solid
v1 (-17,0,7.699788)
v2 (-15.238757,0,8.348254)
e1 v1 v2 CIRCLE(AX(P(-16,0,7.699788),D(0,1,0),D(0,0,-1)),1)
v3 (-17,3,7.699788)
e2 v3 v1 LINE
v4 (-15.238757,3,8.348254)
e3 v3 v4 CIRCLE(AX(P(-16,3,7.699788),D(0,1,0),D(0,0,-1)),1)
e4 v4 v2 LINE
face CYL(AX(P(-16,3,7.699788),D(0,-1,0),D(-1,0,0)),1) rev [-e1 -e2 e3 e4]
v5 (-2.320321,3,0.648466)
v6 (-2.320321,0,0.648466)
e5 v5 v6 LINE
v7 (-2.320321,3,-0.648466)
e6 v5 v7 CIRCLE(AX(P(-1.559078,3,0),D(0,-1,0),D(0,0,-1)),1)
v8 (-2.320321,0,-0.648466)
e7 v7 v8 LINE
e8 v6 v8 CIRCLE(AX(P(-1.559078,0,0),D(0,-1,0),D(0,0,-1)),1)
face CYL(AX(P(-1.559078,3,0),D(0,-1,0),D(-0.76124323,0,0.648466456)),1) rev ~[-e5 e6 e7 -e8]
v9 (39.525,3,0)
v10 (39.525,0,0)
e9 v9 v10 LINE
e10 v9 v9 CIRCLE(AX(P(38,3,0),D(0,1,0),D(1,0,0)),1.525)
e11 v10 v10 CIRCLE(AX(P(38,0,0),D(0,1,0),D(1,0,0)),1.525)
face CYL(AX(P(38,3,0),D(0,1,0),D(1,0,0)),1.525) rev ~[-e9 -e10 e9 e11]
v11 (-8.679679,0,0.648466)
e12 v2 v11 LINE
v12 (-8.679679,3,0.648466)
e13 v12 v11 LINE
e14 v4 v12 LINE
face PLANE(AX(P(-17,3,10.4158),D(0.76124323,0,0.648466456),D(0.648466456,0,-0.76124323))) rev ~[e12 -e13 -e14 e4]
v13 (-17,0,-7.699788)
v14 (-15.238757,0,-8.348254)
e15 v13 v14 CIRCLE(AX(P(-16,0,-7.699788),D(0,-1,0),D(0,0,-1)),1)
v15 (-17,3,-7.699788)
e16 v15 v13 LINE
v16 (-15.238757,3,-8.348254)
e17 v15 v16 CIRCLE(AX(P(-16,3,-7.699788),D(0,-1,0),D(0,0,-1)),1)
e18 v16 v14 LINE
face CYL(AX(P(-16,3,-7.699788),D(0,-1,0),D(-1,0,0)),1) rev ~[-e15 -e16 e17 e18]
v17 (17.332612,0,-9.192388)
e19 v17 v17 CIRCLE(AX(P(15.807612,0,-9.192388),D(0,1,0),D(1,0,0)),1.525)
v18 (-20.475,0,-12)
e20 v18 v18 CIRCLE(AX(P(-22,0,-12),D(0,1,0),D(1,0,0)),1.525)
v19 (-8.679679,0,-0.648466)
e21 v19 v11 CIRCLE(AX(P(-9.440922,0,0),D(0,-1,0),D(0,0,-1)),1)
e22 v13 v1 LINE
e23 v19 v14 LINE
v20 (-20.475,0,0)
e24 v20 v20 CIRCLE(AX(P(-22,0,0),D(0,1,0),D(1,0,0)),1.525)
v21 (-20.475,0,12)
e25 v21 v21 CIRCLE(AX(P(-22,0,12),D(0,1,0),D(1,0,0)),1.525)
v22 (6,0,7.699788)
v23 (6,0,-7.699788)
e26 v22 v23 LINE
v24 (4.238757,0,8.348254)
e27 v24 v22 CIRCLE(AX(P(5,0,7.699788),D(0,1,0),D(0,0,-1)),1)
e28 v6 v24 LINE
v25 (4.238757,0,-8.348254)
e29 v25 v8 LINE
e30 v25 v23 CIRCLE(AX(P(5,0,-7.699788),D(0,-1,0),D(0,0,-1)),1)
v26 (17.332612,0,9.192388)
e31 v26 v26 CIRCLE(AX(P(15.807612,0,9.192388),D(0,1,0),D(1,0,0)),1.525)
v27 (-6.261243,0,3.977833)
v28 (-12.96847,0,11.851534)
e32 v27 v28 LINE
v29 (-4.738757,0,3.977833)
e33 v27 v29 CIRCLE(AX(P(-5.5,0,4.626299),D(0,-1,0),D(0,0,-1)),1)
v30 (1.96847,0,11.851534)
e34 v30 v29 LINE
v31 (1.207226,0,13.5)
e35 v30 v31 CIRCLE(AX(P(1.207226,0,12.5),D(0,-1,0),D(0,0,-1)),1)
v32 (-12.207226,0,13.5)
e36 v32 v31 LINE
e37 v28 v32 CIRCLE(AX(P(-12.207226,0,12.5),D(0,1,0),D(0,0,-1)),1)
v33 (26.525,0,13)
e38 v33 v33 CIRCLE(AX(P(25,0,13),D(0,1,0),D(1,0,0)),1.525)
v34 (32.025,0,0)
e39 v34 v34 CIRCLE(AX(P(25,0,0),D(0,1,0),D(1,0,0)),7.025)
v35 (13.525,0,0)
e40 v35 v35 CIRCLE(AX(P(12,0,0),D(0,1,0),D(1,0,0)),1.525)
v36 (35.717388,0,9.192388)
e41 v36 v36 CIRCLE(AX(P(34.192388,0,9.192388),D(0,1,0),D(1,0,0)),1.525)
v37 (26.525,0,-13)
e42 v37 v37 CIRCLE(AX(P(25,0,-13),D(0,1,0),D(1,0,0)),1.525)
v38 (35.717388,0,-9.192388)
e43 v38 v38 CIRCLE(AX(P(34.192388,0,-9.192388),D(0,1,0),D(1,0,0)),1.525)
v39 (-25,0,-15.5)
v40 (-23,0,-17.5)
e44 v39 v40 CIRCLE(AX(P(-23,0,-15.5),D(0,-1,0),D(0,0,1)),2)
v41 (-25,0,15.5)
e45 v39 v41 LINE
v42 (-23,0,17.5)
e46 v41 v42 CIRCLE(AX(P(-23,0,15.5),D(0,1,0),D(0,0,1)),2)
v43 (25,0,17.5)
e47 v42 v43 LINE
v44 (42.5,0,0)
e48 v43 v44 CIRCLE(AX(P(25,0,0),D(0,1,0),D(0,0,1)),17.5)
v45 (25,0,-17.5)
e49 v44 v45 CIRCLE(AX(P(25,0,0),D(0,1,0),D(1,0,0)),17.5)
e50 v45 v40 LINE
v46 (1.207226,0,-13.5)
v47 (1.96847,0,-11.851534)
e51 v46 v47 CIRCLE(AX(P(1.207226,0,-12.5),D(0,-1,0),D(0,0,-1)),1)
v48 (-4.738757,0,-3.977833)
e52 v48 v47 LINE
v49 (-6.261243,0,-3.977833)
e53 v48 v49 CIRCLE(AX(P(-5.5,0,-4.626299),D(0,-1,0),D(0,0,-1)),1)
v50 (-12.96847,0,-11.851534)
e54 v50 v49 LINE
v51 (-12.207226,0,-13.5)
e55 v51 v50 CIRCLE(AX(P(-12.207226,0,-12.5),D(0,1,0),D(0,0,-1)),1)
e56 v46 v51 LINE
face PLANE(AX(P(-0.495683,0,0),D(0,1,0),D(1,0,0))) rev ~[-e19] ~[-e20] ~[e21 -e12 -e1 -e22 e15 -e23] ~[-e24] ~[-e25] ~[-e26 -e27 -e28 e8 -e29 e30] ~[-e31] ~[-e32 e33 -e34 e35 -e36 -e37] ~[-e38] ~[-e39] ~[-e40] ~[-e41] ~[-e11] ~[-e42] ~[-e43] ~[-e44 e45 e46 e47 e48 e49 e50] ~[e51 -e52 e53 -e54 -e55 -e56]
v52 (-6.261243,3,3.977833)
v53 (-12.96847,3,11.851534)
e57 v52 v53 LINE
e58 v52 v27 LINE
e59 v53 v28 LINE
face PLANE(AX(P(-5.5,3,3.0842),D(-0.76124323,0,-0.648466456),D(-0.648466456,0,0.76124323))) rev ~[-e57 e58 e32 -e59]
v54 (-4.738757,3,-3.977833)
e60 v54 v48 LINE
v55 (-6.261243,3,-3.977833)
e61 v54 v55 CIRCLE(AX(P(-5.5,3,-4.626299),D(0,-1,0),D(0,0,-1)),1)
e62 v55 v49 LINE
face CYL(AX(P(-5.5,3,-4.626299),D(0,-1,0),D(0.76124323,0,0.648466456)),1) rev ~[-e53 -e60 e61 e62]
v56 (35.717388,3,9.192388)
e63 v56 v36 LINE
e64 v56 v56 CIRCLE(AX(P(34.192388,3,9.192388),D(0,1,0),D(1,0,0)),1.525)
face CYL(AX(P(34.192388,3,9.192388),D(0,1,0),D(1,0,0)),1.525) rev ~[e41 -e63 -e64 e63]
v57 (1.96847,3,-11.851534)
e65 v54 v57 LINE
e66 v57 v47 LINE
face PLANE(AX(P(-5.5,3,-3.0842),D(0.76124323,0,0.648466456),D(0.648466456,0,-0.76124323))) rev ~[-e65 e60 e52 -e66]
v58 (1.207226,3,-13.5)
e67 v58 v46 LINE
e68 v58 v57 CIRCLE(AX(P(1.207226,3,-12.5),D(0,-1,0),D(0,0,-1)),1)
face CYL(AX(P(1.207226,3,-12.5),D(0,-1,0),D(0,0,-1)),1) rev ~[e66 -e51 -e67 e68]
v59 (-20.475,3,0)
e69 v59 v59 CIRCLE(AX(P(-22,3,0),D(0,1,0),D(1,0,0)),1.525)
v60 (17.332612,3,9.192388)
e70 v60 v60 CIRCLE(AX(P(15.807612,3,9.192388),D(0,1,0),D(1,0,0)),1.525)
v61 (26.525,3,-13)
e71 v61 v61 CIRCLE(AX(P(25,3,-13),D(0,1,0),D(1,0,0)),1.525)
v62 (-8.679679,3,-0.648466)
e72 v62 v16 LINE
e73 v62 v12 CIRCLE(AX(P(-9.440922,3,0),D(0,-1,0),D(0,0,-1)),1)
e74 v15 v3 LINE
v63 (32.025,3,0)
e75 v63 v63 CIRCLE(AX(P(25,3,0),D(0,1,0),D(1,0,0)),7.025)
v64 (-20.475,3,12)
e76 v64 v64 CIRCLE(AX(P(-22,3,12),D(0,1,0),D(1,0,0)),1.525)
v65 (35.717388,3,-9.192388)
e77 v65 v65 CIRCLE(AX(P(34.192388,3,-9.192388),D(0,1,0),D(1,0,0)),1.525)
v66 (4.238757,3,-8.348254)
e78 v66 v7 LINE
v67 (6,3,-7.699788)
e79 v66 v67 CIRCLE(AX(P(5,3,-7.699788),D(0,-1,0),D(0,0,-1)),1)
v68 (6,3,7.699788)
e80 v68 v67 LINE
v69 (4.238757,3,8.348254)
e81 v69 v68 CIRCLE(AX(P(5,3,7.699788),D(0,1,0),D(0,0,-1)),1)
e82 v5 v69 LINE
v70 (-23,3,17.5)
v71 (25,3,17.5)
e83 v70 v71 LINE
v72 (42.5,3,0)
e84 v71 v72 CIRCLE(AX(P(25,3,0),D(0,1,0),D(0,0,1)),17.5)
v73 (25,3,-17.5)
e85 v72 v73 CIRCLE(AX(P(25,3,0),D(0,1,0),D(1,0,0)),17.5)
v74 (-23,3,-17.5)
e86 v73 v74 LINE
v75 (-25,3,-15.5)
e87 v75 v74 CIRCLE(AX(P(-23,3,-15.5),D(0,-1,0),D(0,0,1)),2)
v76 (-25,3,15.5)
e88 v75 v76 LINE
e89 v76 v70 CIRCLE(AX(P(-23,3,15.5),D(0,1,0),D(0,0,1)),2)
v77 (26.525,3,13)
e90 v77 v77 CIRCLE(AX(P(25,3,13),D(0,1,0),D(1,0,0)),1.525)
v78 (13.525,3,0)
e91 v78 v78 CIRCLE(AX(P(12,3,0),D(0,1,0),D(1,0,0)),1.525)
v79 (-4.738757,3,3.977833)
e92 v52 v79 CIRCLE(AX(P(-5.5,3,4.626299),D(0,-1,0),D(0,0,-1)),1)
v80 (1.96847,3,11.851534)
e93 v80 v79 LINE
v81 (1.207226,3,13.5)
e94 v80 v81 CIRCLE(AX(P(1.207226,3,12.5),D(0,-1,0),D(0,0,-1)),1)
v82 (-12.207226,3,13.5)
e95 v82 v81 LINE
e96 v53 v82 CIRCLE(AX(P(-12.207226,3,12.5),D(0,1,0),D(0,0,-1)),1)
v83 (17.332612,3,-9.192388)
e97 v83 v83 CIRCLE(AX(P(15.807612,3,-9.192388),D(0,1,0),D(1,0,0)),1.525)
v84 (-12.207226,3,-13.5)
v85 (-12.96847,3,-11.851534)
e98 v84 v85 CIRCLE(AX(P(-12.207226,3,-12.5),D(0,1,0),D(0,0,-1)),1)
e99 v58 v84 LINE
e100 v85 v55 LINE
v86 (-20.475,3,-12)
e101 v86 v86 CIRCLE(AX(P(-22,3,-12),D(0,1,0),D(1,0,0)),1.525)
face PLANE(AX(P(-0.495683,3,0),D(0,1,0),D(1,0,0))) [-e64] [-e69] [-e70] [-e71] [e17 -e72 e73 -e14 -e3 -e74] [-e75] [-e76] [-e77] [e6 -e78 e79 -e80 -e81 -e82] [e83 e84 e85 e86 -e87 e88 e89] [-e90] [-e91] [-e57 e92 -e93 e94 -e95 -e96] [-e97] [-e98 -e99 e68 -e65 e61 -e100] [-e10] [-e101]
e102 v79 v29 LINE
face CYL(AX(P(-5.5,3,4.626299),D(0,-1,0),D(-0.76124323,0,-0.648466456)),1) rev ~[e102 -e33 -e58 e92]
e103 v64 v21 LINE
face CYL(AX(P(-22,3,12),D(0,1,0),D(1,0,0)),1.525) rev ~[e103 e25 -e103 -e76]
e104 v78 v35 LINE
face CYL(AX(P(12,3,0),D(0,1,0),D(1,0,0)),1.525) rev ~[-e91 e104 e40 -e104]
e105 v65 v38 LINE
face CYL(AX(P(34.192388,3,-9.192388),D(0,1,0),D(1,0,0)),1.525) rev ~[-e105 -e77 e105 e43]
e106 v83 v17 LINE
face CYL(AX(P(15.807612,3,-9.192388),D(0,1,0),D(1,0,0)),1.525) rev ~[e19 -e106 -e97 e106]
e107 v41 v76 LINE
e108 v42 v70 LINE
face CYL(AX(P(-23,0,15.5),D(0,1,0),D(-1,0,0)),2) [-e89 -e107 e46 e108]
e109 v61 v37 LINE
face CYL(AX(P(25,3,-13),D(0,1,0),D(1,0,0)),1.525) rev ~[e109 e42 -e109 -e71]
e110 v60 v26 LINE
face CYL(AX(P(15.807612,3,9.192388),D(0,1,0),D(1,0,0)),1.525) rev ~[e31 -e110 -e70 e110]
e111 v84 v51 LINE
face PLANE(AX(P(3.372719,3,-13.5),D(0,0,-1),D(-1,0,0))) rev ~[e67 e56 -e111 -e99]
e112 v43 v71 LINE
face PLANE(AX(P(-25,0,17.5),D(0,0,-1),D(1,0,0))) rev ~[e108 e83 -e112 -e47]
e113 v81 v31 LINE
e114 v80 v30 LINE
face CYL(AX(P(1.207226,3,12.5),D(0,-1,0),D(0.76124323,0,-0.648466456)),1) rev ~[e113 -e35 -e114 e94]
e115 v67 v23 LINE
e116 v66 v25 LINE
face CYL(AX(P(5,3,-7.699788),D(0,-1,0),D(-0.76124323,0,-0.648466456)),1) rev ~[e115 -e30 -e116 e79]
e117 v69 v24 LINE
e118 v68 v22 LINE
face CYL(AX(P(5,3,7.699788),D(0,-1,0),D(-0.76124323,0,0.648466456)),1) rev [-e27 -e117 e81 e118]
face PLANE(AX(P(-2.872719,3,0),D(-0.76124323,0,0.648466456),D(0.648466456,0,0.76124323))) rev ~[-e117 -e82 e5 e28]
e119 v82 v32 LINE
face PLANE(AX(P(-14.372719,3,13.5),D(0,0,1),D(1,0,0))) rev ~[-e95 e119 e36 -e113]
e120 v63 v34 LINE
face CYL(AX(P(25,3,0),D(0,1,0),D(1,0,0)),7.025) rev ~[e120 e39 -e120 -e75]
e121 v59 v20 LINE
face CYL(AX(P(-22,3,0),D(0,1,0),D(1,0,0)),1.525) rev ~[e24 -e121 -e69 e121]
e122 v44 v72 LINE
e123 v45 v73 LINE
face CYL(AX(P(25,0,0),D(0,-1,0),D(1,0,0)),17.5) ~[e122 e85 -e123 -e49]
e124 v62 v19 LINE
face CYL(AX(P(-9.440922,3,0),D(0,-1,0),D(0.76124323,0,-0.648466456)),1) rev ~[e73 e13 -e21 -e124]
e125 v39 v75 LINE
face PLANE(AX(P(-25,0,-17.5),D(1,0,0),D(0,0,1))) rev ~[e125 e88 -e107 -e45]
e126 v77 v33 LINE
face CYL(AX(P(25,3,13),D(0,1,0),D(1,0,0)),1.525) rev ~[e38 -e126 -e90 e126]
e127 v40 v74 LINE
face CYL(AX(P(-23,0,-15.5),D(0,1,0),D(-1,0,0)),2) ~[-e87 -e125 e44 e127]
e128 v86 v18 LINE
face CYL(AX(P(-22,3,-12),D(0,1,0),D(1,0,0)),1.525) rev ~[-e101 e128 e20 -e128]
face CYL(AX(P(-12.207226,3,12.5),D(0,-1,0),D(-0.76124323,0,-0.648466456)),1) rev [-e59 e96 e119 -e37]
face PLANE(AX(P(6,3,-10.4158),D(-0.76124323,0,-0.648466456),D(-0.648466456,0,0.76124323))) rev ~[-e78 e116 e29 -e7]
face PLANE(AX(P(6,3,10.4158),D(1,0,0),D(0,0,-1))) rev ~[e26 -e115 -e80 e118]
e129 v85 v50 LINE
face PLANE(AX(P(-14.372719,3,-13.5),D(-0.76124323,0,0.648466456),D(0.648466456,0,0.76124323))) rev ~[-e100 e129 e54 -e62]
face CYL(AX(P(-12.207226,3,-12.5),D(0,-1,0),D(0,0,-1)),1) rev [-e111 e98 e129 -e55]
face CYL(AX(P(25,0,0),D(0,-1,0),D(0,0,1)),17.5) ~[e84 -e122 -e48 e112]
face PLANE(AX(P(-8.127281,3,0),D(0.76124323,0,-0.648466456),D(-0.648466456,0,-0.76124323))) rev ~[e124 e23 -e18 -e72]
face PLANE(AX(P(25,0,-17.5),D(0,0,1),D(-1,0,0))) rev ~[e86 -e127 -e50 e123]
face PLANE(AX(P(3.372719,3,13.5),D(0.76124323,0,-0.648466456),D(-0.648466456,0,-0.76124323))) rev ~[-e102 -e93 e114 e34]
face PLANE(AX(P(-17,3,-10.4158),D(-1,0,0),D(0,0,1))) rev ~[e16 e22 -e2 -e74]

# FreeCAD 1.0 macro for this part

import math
import FreeCAD as App
import Part
import Sketcher
Q = App.Units.Quantity


def edges_at(feature, points):
    """Names of the edges that pass closest to the given points."""
    edges = feature.Shape.Edges
    near = lambda p: min(range(len(edges)), key=lambda i: edges[i].distToShape(Part.Vertex(*p))[0])
    return sorted({f"Edge{near(p) + 1}" for p in points})

doc = App.newDocument("Part")
body = doc.addObject("PartDesign::Body", "Body")

sketch1 = body.newObject("Sketcher::SketchObject", "Sketch")
sketch1.AttachmentSupport = (doc.getObject("XZ_Plane"), [""])
sketch1.MapMode = "FlatFace"
sketch1.addGeometry(Part.LineSegment(App.Vector(-25, -18, 0), App.Vector(-25, 18, 0)), False)
sketch1.addGeometry(Part.LineSegment(App.Vector(-25, 18, 0), App.Vector(25, 18, 0)), False)
sketch1.addGeometry(Part.ArcOfCircle(Part.Circle(App.Vector(25, 0, 0), App.Vector(0, 0, 1), 17), math.radians(0), math.radians(90)), False)
sketch1.addGeometry(Part.ArcOfCircle(Part.Circle(App.Vector(25, 0, 0), App.Vector(0, 0, 1), 17), math.radians(-90), math.radians(0)), False)
sketch1.addGeometry(Part.LineSegment(App.Vector(25, -18, 0), App.Vector(-25, -18, 0)), False)
sketch1.addConstraint(Sketcher.Constraint("Coincident", 0, 2, 1, 1))
sketch1.addConstraint(Sketcher.Constraint("Tangent", 1, 2, 2, 2))
sketch1.addConstraint(Sketcher.Constraint("Tangent", 2, 1, 3, 2))
sketch1.addConstraint(Sketcher.Constraint("Tangent", 3, 1, 4, 1))
sketch1.addConstraint(Sketcher.Constraint("Coincident", 4, 2, 0, 1))
sketch1.addConstraint(Sketcher.Constraint("Vertical", 0))
sketch1.addConstraint(Sketcher.Constraint("Horizontal", 1))
sketch1.addConstraint(Sketcher.Constraint("Horizontal", 4))
sketch1.addConstraint(Sketcher.Constraint("Equal", 2, 3))
sketch1.addConstraint(Sketcher.Constraint("Symmetric", 0, 2, 3, 1, -1, 1))
sketch1.addConstraint(Sketcher.Constraint("PointOnObject", 2, 1, -1))
sketch1.addConstraint(Sketcher.Constraint("Radius", 2, Q("17.5 mm")))
sketch1.addConstraint(Sketcher.Constraint("DistanceX", 1, 1, 1, 2, Q("50 mm")))
pad1 = body.newObject("PartDesign::Pad", "Pad")
pad1.Profile = sketch1
pad1.Length = 3
pad1.Reversed = True

sketch2 = body.newObject("Sketcher::SketchObject", "Sketch001")
sketch2.AttachmentSupport = (doc.getObject("XZ_Plane"), [""])
sketch2.MapMode = "FlatFace"
sketch2.AttachmentOffset = App.Placement(App.Vector(0, 0, -3), App.Rotation())
sketch2.addGeometry(Part.Circle(App.Vector(25, 0, 0), App.Vector(0, 0, 1), 7), False)
sketch2.addConstraint(Sketcher.Constraint("PointOnObject", 0, 3, -1))
sketch2.addConstraint(Sketcher.Constraint("Diameter", 0, Q("14.05 mm")))
sketch2.addConstraint(Sketcher.Constraint("DistanceX", -1, 1, 0, 3, Q("25 mm")))
pocket1 = body.newObject("PartDesign::Pocket", "Pocket")
pocket1.Profile = sketch2
pocket1.Type = "ThroughAll"
pocket1.Reversed = True

sketch3 = body.newObject("Sketcher::SketchObject", "Sketch002")
sketch3.AttachmentSupport = (doc.getObject("XZ_Plane"), [""])
sketch3.MapMode = "FlatFace"
sketch3.AttachmentOffset = App.Placement(App.Vector(0, 0, -3), App.Rotation())
sketch3.addGeometry(Part.Circle(App.Vector(25, -13, 0), App.Vector(0, 0, 1), 1.5), False)
sketch3.addGeometry(Part.Circle(App.Vector(34.2, -9.2, 0), App.Vector(0, 0, 1), 1.5), False)
sketch3.addGeometry(Part.Circle(App.Vector(38, 0, 0), App.Vector(0, 0, 1), 1.5), False)
sketch3.addGeometry(Part.Circle(App.Vector(34.2, 9.2, 0), App.Vector(0, 0, 1), 1.5), False)
sketch3.addGeometry(Part.Circle(App.Vector(25, 13, 0), App.Vector(0, 0, 1), 1.5), False)
sketch3.addGeometry(Part.Circle(App.Vector(15.8, 9.2, 0), App.Vector(0, 0, 1), 1.5), False)
sketch3.addGeometry(Part.Circle(App.Vector(12, 0, 0), App.Vector(0, 0, 1), 1.5), False)
sketch3.addGeometry(Part.Circle(App.Vector(15.8, -9.2, 0), App.Vector(0, 0, 1), 1.5), False)
sketch3.addConstraint(Sketcher.Constraint("Equal", 0, 1))
sketch3.addConstraint(Sketcher.Constraint("Equal", 1, 2))
sketch3.addConstraint(Sketcher.Constraint("Equal", 2, 3))
sketch3.addConstraint(Sketcher.Constraint("Equal", 3, 4))
sketch3.addConstraint(Sketcher.Constraint("Equal", 4, 5))
sketch3.addConstraint(Sketcher.Constraint("Equal", 5, 6))
sketch3.addConstraint(Sketcher.Constraint("Equal", 6, 7))
sketch3.addConstraint(Sketcher.Constraint("Symmetric", 1, 3, 3, 3, -1))
sketch3.addConstraint(Sketcher.Constraint("Symmetric", 0, 3, 4, 3, -1))
sketch3.addConstraint(Sketcher.Constraint("Symmetric", 5, 3, 7, 3, -1))
sketch3.addConstraint(Sketcher.Constraint("PointOnObject", 2, 3, -1))
sketch3.addConstraint(Sketcher.Constraint("PointOnObject", 6, 3, -1))
sketch3.addConstraint(Sketcher.Constraint("Horizontal", 3, 3, 5, 3))
sketch3.addConstraint(Sketcher.Constraint("Diameter", 0, Q("3.05 mm")))
sketch3.addConstraint(Sketcher.Constraint("DistanceX", -1, 1, 0, 3, Q("25 mm")))
sketch3.addConstraint(Sketcher.Constraint("DistanceY", 0, 3, -1, 1, Q("13 mm")))
sketch3.addConstraint(Sketcher.Constraint("DistanceX", -1, 1, 2, 3, Q("38 mm")))
sketch3.addConstraint(Sketcher.Constraint("DistanceX", -1, 1, 6, 3, Q("12 mm")))
sketch3.addConstraint(Sketcher.Constraint("DistanceX", -1, 1, 1, 3, Q("34.192388 mm")))
sketch3.addConstraint(Sketcher.Constraint("DistanceY", 1, 3, -1, 1, Q("9.192388 mm")))
sketch3.addConstraint(Sketcher.Constraint("DistanceX", -1, 1, 5, 3, Q("15.807612 mm")))
pocket2 = body.newObject("PartDesign::Pocket", "Pocket001")
pocket2.Profile = sketch3
pocket2.Type = "ThroughAll"
pocket2.Reversed = True
doc.recompute()

fillet = body.newObject("PartDesign::Fillet", "Fillet")
fillet.Base = (pocket2, edges_at(pocket2, [(-25, 1.5, 17.5), (-25, 1.5, -17.5)]))
fillet.Radius = 2

sketch4 = body.newObject("Sketcher::SketchObject", "Sketch003")
sketch4.AttachmentSupport = (doc.getObject("XZ_Plane"), [""])
sketch4.MapMode = "FlatFace"
sketch4.AttachmentOffset = App.Placement(App.Vector(0, 0, -3), App.Rotation())
sketch4.addGeometry(Part.LineSegment(App.Vector(3, -14, 0), App.Vector(-14, -14, 0)), False)
sketch4.addGeometry(Part.LineSegment(App.Vector(-14, -14, 0), App.Vector(-6, -3, 0)), False)
sketch4.addGeometry(Part.LineSegment(App.Vector(-6, -3, 0), App.Vector(3, -14, 0)), False)
sketch4.addGeometry(Part.LineSegment(App.Vector(-3, 0, 0), App.Vector(6, 10, 0)), False)
sketch4.addGeometry(Part.LineSegment(App.Vector(6, 10, 0), App.Vector(6, -10, 0)), False)
sketch4.addGeometry(Part.LineSegment(App.Vector(6, -10, 0), App.Vector(-3, 0, 0)), False)
sketch4.addGeometry(Part.LineSegment(App.Vector(-6, 3, 0), App.Vector(-14, 14, 0)), False)
sketch4.addGeometry(Part.LineSegment(App.Vector(-14, 14, 0), App.Vector(3, 14, 0)), False)
sketch4.addGeometry(Part.LineSegment(App.Vector(3, 14, 0), App.Vector(-6, 3, 0)), False)
sketch4.addGeometry(Part.LineSegment(App.Vector(-17, -10, 0), App.Vector(-17, 10, 0)), False)
sketch4.addGeometry(Part.LineSegment(App.Vector(-17, 10, 0), App.Vector(-8, 0, 0)), False)
sketch4.addGeometry(Part.LineSegment(App.Vector(-8, 0, 0), App.Vector(-17, -10, 0)), False)
sketch4.addConstraint(Sketcher.Constraint("Coincident", 0, 2, 1, 1))
sketch4.addConstraint(Sketcher.Constraint("Coincident", 1, 2, 2, 1))
sketch4.addConstraint(Sketcher.Constraint("Coincident", 2, 2, 0, 1))
sketch4.addConstraint(Sketcher.Constraint("Coincident", 3, 2, 4, 1))
sketch4.addConstraint(Sketcher.Constraint("Coincident", 4, 2, 5, 1))
sketch4.addConstraint(Sketcher.Constraint("Coincident", 5, 2, 3, 1))
sketch4.addConstraint(Sketcher.Constraint("Coincident", 6, 2, 7, 1))
sketch4.addConstraint(Sketcher.Constraint("Coincident", 7, 2, 8, 1))
sketch4.addConstraint(Sketcher.Constraint("Coincident", 8, 2, 6, 1))
sketch4.addConstraint(Sketcher.Constraint("Coincident", 9, 2, 10, 1))
sketch4.addConstraint(Sketcher.Constraint("Coincident", 10, 2, 11, 1))
sketch4.addConstraint(Sketcher.Constraint("Coincident", 11, 2, 9, 1))
sketch4.addConstraint(Sketcher.Constraint("Horizontal", 0))
sketch4.addConstraint(Sketcher.Constraint("Vertical", 4))
sketch4.addConstraint(Sketcher.Constraint("Horizontal", 7))
sketch4.addConstraint(Sketcher.Constraint("Vertical", 9))
sketch4.addConstraint(Sketcher.Constraint("Symmetric", 0, 2, 6, 2, -1))
sketch4.addConstraint(Sketcher.Constraint("Symmetric", 1, 2, 8, 2, -1))
sketch4.addConstraint(Sketcher.Constraint("PointOnObject", 5, 2, -1))
sketch4.addConstraint(Sketcher.Constraint("PointOnObject", 10, 2, -1))
sketch4.addConstraint(Sketcher.Constraint("Parallel", 1, 3))
sketch4.addConstraint(Sketcher.Constraint("Parallel", 2, 5))
sketch4.addConstraint(Sketcher.Constraint("Parallel", 5, 6))
sketch4.addConstraint(Sketcher.Constraint("Parallel", 3, 8))
sketch4.addConstraint(Sketcher.Constraint("Parallel", 6, 10))
sketch4.addConstraint(Sketcher.Constraint("Parallel", 8, 11))
sketch4.addConstraint(Sketcher.Constraint("Horizontal", 3, 2, 9, 2))
sketch4.addConstraint(Sketcher.Constraint("Equal", 2, 3))
sketch4.addConstraint(Sketcher.Constraint("DistanceX", -1, 1, 3, 2, Q("6 mm")))
sketch4.addConstraint(Sketcher.Constraint("DistanceX", 9, 2, -1, 1, Q("17 mm")))
sketch4.addConstraint(Sketcher.Constraint("DistanceY", 0, 2, 6, 2, Q("27 mm")))
sketch4.addConstraint(Sketcher.Constraint("DistanceX", 1, 2, -1, 1, Q("5.5 mm")))
sketch4.addConstraint(Sketcher.Constraint("DistanceY", 4, 2, 4, 1, Q("20.831601 mm")))
sketch4.addConstraint(Sketcher.Constraint("Distance", 1, Q("13.682618 mm")))
pocket3 = body.newObject("PartDesign::Pocket", "Pocket002")
pocket3.Profile = sketch4
pocket3.Type = "ThroughAll"
pocket3.Reversed = True

sketch5 = body.newObject("Sketcher::SketchObject", "Sketch004")
sketch5.AttachmentSupport = (doc.getObject("XZ_Plane"), [""])
sketch5.MapMode = "FlatFace"
sketch5.AttachmentOffset = App.Placement(App.Vector(0, 0, -3), App.Rotation())
sketch5.addGeometry(Part.Circle(App.Vector(-22, 0, 0), App.Vector(0, 0, 1), 1.5), False)
sketch5.addGeometry(Part.Circle(App.Vector(-22, -12, 0), App.Vector(0, 0, 1), 1.5), False)
sketch5.addGeometry(Part.Circle(App.Vector(-22, 12, 0), App.Vector(0, 0, 1), 1.5), False)
sketch5.addConstraint(Sketcher.Constraint("Equal", 0, 1))
sketch5.addConstraint(Sketcher.Constraint("Equal", 1, 2))
sketch5.addConstraint(Sketcher.Constraint("Symmetric", 1, 3, 2, 3, -1))
sketch5.addConstraint(Sketcher.Constraint("PointOnObject", 0, 3, -1))
sketch5.addConstraint(Sketcher.Constraint("Vertical", 0, 3, 1, 3))
sketch5.addConstraint(Sketcher.Constraint("Diameter", 0, Q("3.05 mm")))
sketch5.addConstraint(Sketcher.Constraint("DistanceX", 0, 3, -1, 1, Q("22 mm")))
sketch5.addConstraint(Sketcher.Constraint("DistanceY", 1, 3, -1, 1, Q("12 mm")))
pocket4 = body.newObject("PartDesign::Pocket", "Pocket003")
pocket4.Profile = sketch5
pocket4.Type = "ThroughAll"
pocket4.Reversed = True
doc.recompute()

fillet2 = body.newObject("PartDesign::Fillet", "Fillet001")
fillet2.Base = (pocket4, edges_at(pocket4, [
    (-17, 1.5, 10.416),
    (-17, 1.5, -10.416),
    (-8.127, 1.5, 0),
    (-5.5, 1.5, -3.084),
    (-14.373, 1.5, -13.5),
    (3.373, 1.5, -13.5),
    (-14.373, 1.5, 13.5),
    (-5.5, 1.5, 3.084),
    (3.373, 1.5, 13.5),
    (-2.873, 1.5, 0),
    (6, 1.5, -10.416),
    (6, 1.5, 10.416),
]))
fillet2.Radius = 1

doc.recompute()
